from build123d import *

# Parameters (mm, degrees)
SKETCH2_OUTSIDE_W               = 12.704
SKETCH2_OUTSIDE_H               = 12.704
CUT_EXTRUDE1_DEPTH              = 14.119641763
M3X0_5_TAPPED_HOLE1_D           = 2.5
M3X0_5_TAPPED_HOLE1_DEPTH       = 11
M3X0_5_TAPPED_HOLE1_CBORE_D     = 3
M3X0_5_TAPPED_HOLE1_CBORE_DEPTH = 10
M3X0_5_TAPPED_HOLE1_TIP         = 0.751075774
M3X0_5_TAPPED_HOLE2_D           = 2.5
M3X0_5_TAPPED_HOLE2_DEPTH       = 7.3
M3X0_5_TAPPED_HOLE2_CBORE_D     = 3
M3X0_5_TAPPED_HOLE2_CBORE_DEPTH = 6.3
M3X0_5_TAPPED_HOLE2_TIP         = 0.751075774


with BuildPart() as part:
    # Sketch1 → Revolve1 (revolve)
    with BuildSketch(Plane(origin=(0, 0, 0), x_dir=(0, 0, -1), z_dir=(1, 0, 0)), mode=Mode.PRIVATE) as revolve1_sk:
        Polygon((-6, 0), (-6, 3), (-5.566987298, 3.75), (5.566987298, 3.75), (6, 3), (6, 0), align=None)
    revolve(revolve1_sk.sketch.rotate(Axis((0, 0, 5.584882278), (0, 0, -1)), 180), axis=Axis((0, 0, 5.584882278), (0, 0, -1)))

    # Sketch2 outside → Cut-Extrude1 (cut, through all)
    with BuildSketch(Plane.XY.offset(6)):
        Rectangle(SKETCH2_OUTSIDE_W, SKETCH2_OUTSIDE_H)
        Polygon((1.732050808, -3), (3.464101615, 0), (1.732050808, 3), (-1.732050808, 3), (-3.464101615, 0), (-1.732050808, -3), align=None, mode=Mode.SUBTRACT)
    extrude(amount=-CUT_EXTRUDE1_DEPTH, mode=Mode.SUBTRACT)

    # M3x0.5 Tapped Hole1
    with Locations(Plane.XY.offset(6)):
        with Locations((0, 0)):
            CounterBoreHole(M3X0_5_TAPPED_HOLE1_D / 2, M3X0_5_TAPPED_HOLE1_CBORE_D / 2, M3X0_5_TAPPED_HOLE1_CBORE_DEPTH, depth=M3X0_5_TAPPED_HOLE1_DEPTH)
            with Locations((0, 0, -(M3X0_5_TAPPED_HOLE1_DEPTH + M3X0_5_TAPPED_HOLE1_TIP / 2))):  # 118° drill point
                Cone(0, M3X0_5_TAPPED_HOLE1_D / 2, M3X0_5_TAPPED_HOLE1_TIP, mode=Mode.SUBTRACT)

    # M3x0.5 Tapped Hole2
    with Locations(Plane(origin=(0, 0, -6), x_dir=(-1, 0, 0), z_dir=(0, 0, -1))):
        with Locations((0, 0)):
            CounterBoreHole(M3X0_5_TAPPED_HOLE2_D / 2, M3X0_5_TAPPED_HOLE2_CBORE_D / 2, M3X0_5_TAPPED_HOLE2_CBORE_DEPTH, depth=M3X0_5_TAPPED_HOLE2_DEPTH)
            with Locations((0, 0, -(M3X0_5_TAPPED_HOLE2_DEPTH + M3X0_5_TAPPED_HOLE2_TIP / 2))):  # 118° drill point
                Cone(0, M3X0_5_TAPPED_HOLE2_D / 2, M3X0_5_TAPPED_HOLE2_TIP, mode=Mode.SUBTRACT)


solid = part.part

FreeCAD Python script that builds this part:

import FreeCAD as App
import Part
import Sketcher
from FreeCAD import Vector
Q = App.Units.Quantity


def add_polygon(sketch, points):
    """Adds a closed chain of lines whose ends are joined by coincident constraints."""
    first, n = sketch.GeometryCount, len(points)
    for a, b in zip(points, points[1:] + points[:1]):
        sketch.addGeometry(Part.LineSegment(App.Vector(*a, 0), App.Vector(*b, 0)), False)
    for i in range(n):
        sketch.addConstraint(Sketcher.Constraint("Coincident", first + i, 2, first + (i + 1) % n, 1))

doc = App.newDocument("Part")
body = doc.addObject("PartDesign::Body", "Body")

# Sketch on YZ plane
sketch1 = body.newObject("Sketcher::SketchObject", "Sketch")
sketch1.AttachmentSupport = (doc.getObject("YZ_Plane"), [""])
sketch1.MapMode = "FlatFace"
add_polygon(sketch1, [(3, 6), (0, 6), (0, -6), (3, -6), (3.8, -5.6), (3.8, 5.6)])  # lines 0-5
sketch1.addConstraint([
    Sketcher.Constraint("Horizontal", 0),
    Sketcher.Constraint("Vertical", 1),
    Sketcher.Constraint("Horizontal", 2),
    Sketcher.Constraint("Vertical", 4),
    Sketcher.Constraint("Symmetric", 0, 2, 1, 2, -1, 1),
    Sketcher.Constraint("Vertical", 2, 2, 5, 2),
    Sketcher.Constraint("Equal", 3, 5),
    Sketcher.Constraint("DistanceX", 0, 2, 0, 1, 3.0),
    Sketcher.Constraint("DistanceY", 1, 2, 1, 1, 12.0),
    Sketcher.Constraint("Angle", 3, Q("30 deg")),
    Sketcher.Constraint("DistanceX", -1, 1, 3, 2, 3.75),
])
revolution = body.newObject("PartDesign::Revolution", "Revolution")
revolution.Profile = sketch1
revolution.ReferenceAxis = (sketch1, ["V_Axis"])
revolution.Angle = 360

# Sketch on XY plane
sketch2 = body.newObject("Sketcher::SketchObject", "Sketch001")
sketch2.AttachmentSupport = (doc.getObject("XY_Plane"), [""])
sketch2.MapMode = "FlatFace"
sketch2.AttachmentOffset = App.Placement(Vector(0, 0, 6), App.Rotation())
add_polygon(sketch2, [(-6.4, 6.4), (-6.4, -6.4), (6.4, -6.4), (6.4, 6.4)])  # lines 0-3
add_polygon(sketch2, [(3.5, 0), (1.7, -3), (-1.7, -3), (-3.5, 0), (-1.7, 3), (1.7, 3)])  # lines 4-9
sketch2.addConstraint([
    Sketcher.Constraint("Vertical", 0),
    Sketcher.Constraint("Horizontal", 1),
    Sketcher.Constraint("Vertical", 2),
    Sketcher.Constraint("Horizontal", 3),
    Sketcher.Constraint("Horizontal", 5),
    Sketcher.Constraint("Horizontal", 8),
    Sketcher.Constraint("Symmetric", 0, 2, 2, 2, -1, 1),
    Sketcher.Constraint("Symmetric", 4, 2, 7, 2, -1, 1),
    Sketcher.Constraint("Symmetric", 6, 2, 9, 2, -1, 1),
    Sketcher.Constraint("PointOnObject", 6, 2, -1),
    Sketcher.Constraint("Parallel", 6, 9),
    Sketcher.Constraint("Vertical", 5, 2, 7, 2),
    Sketcher.Constraint("Equal", 3, 0),
    Sketcher.Constraint("Angle", 4, Q("-120 deg")),
    Sketcher.Constraint("DistanceY", 4, 2, -1, 1, 3.0),
    Sketcher.Constraint("DistanceX", 1, 1, 1, 2, 12.704),
    Sketcher.Constraint("DistanceX", 5, 2, 5, 1, 3.464102),
])
pocket1 = body.newObject("PartDesign::Pocket", "Pocket")
pocket1.Profile = sketch2
pocket1.Type = "ThroughAll"

# Sketch on XY plane
sketch3 = body.newObject("Sketcher::SketchObject", "Sketch002")
sketch3.AttachmentSupport = (doc.getObject("XY_Plane"), [""])
sketch3.MapMode = "FlatFace"
sketch3.AttachmentOffset = App.Placement(Vector(0, 0, 6), App.Rotation())
sketch3.addGeometry(Part.Circle(Vector(0, 0, 0), Vector(0, 0, 1), 1.2), False)
sketch3.addConstraint([
    Sketcher.Constraint("Coincident", 0, 3, -1, 1),
    Sketcher.Constraint("Diameter", 0, 2.5),
])
doc.recompute()
hole = body.newObject("PartDesign::Hole", "Hole")
hole.Profile = sketch3
hole.ThreadType = "None"
hole.Diameter = 2.5
hole.DepthType = "Dimension"
hole.Depth = 11
hole.DrillPoint = "Angled"
hole.DrillPointAngle = 118
hole.HoleCutType = "Counterbore"
hole.HoleCutDiameter = 3
hole.HoleCutDepth = 10

# Sketch on XY plane
sketch4 = body.newObject("Sketcher::SketchObject", "Sketch003")
sketch4.AttachmentSupport = (doc.getObject("XY_Plane"), [""])
sketch4.MapMode = "FlatFace"
sketch4.AttachmentOffset = App.Placement(Vector(0, 0, -6), App.Rotation())
sketch4.addGeometry(Part.Circle(Vector(0, 0, 0), Vector(0, 0, 1), 1.2), False)
sketch4.addConstraint([
    Sketcher.Constraint("Coincident", 0, 3, -1, 1),
    Sketcher.Constraint("Diameter", 0, 2.5),
])
doc.recompute()
hole2 = body.newObject("PartDesign::Hole", "Hole001")
hole2.Profile = sketch4
hole2.ThreadType = "None"
hole2.Diameter = 2.5
hole2.DepthType = "Dimension"
hole2.Depth = 7.3
hole2.DrillPoint = "Angled"
hole2.DrillPointAngle = 118
hole2.HoleCutType = "Counterbore"
hole2.HoleCutDiameter = 3
hole2.HoleCutDepth = 6.3
hole2.Reversed = True

doc.recompute()
